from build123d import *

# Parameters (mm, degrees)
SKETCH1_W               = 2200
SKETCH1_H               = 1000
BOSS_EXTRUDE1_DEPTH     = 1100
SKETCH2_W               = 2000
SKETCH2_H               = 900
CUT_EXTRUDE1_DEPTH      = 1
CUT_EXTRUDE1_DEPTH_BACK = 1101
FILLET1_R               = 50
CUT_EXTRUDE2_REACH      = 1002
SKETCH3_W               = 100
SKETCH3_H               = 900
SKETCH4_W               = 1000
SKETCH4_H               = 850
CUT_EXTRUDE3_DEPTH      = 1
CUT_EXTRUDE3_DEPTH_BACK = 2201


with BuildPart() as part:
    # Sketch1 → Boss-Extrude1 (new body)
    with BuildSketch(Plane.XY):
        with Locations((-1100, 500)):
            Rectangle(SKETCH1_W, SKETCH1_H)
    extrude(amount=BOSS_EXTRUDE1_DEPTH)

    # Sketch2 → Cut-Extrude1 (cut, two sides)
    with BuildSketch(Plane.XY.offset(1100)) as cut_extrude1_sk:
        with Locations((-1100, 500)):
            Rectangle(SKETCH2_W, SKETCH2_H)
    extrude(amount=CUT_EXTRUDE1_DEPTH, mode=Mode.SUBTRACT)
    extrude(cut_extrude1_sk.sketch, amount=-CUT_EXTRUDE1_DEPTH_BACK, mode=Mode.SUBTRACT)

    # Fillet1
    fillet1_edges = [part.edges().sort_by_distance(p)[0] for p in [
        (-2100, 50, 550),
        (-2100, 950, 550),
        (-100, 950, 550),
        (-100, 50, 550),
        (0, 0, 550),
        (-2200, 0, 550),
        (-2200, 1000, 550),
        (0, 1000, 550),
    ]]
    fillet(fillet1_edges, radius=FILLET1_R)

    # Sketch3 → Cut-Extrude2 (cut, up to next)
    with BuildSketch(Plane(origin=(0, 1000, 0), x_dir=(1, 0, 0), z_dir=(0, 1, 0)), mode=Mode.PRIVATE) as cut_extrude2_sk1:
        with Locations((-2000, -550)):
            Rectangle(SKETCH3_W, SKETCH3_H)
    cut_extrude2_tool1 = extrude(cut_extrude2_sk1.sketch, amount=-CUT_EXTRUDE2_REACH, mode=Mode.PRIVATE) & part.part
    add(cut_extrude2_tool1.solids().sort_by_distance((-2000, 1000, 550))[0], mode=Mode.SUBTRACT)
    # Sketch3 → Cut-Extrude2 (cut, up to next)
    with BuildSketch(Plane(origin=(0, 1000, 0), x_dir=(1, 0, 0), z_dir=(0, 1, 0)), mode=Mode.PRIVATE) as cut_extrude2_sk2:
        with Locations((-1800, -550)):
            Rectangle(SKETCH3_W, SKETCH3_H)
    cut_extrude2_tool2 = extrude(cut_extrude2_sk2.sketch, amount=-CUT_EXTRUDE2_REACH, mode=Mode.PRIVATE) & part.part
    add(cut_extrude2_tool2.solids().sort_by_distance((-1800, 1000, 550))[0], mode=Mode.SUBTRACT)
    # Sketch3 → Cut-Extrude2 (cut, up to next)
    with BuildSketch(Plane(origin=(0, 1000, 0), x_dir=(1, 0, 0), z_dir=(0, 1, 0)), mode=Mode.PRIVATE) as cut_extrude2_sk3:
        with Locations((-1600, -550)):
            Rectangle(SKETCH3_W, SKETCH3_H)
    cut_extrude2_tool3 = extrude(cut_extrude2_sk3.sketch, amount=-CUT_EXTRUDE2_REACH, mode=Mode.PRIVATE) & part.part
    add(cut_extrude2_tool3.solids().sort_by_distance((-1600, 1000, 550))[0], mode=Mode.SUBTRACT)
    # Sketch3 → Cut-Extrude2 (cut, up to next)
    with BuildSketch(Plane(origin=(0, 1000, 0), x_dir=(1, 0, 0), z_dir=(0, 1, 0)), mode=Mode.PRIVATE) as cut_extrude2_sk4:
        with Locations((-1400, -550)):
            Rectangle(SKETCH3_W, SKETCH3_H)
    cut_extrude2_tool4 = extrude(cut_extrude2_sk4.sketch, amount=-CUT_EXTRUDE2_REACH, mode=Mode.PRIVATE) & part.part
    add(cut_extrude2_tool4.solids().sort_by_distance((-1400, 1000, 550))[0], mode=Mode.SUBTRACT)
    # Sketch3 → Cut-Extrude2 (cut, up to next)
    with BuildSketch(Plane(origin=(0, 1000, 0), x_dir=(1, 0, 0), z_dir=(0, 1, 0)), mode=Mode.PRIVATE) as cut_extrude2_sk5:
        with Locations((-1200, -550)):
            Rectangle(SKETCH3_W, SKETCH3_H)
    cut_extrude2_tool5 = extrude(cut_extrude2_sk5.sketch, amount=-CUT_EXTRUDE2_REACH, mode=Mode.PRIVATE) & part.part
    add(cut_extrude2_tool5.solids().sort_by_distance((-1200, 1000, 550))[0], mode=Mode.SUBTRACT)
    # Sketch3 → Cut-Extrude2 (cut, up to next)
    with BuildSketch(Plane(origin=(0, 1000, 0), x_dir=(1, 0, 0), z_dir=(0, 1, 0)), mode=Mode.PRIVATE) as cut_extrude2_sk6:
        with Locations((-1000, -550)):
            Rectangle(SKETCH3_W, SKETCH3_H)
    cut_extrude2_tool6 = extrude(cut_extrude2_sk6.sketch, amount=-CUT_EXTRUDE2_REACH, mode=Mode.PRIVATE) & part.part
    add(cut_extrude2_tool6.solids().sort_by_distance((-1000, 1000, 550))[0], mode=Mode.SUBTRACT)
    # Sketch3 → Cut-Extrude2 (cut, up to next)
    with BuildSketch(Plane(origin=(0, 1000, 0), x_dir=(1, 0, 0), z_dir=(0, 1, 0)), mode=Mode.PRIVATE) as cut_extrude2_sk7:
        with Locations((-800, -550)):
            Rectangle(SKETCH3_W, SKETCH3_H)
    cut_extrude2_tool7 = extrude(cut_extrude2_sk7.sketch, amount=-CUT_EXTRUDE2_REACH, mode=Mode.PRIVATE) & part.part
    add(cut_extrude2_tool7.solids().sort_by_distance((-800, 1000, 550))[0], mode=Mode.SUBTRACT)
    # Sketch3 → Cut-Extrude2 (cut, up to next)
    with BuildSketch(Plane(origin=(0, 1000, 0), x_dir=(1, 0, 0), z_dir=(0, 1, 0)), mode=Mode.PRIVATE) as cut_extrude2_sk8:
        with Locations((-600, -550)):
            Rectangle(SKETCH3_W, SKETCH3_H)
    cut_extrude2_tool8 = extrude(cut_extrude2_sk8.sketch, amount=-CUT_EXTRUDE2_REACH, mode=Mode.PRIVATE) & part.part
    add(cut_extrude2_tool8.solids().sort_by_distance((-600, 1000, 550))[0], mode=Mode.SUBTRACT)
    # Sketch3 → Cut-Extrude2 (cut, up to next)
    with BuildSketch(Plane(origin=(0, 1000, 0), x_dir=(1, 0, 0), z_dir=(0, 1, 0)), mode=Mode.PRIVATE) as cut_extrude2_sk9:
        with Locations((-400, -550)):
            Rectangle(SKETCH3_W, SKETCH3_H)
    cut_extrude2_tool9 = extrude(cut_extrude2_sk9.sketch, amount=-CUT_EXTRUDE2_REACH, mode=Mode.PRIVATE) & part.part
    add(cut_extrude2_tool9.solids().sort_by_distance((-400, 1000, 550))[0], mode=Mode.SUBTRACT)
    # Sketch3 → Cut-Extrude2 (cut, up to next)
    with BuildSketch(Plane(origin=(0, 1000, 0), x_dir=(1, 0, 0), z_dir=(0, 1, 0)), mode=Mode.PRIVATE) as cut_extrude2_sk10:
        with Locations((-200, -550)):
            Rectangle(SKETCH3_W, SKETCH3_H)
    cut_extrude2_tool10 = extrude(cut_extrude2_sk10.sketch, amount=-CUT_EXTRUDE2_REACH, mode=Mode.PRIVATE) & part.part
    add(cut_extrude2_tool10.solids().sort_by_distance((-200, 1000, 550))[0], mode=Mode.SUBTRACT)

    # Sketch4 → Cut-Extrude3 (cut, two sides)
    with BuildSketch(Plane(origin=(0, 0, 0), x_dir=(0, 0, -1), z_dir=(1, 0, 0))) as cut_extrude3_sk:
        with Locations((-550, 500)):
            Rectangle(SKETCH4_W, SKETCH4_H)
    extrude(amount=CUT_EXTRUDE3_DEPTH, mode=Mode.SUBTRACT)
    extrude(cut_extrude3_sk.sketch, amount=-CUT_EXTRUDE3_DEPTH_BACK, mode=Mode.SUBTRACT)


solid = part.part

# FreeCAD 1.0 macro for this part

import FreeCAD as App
import Part
import Sketcher


def edges_at(feature, points):
    """Names of the edges that pass closest to the given points."""
    edges = feature.Shape.Edges
    near = lambda p: min(range(len(edges)), key=lambda i: edges[i].distToShape(Part.Vertex(*p))[0])
    return sorted({f"Edge{near(p) + 1}" for p in points})

doc = App.newDocument("Part")
body = doc.addObject("PartDesign::Body", "Body")

# Sketch on XY plane
sketch1 = body.newObject("Sketcher::SketchObject", "Sketch")
sketch1.AttachmentSupport = (doc.getObject("XY_Plane"), [""])
sketch1.MapMode = "FlatFace"
sketch1.addGeometry([
    Part.LineSegment(App.Vector(-2200, 1000, 0), App.Vector(-2200, 0, 0)),
    Part.LineSegment(App.Vector(-2200, 0, 0), App.Vector(0, 0, 0)),
    Part.LineSegment(App.Vector(0, 0, 0), App.Vector(0, 1000, 0)),
    Part.LineSegment(App.Vector(0, 1000, 0), App.Vector(-2200, 1000, 0)),
], False)
sketch1.addConstraint([
    Sketcher.Constraint("Coincident", 0, 2, 1, 1),
    Sketcher.Constraint("Coincident", 1, 2, 2, 1),
    Sketcher.Constraint("Coincident", 2, 2, 3, 1),
    Sketcher.Constraint("Coincident", 3, 2, 0, 1),
    Sketcher.Constraint("Vertical", 0),
    Sketcher.Constraint("Horizontal", 1),
    Sketcher.Constraint("Vertical", 2),
    Sketcher.Constraint("Horizontal", 3),
    Sketcher.Constraint("Coincident", 1, 2, -1, 1),
    Sketcher.Constraint("DistanceX", 1, 1, 1, 2, 2200.0),
    Sketcher.Constraint("DistanceY", 0, 2, 0, 1, 1000.0),
])
pad1 = body.newObject("PartDesign::Pad", "Pad")
pad1.Profile = sketch1
pad1.Length = 1100

# Sketch on XY plane
sketch2 = body.newObject("Sketcher::SketchObject", "Sketch001")
sketch2.AttachmentSupport = (doc.getObject("XY_Plane"), [""])
sketch2.MapMode = "FlatFace"
sketch2.AttachmentOffset = App.Placement(App.Vector(0, 0, 1100), App.Rotation())
sketch2.addGeometry([
    Part.LineSegment(App.Vector(-2100, 950, 0), App.Vector(-2100, 50, 0)),
    Part.LineSegment(App.Vector(-2100, 50, 0), App.Vector(-100, 50, 0)),
    Part.LineSegment(App.Vector(-100, 50, 0), App.Vector(-100, 950, 0)),
    Part.LineSegment(App.Vector(-100, 950, 0), App.Vector(-2100, 950, 0)),
], False)
sketch2.addConstraint([
    Sketcher.Constraint("Coincident", 0, 2, 1, 1),
    Sketcher.Constraint("Coincident", 1, 2, 2, 1),
    Sketcher.Constraint("Coincident", 2, 2, 3, 1),
    Sketcher.Constraint("Coincident", 3, 2, 0, 1),
    Sketcher.Constraint("Vertical", 0),
    Sketcher.Constraint("Horizontal", 1),
    Sketcher.Constraint("Vertical", 2),
    Sketcher.Constraint("Horizontal", 3),
    Sketcher.Constraint("DistanceX", 1, 1, 1, 2, 2000.0),
    Sketcher.Constraint("DistanceY", 0, 2, 0, 1, 900.0),
    Sketcher.Constraint("DistanceX", 0, 2, -1, 1, 2100.0),
    Sketcher.Constraint("DistanceY", -1, 1, 0, 2, 50.0),
])
pocket1 = body.newObject("PartDesign::Pocket", "Pocket")
pocket1.Profile = sketch2
pocket1.Type = "ThroughAll"
pocket1.Midplane = True
doc.recompute()

fillet = body.newObject("PartDesign::Fillet", "Fillet")
fillet.Base = (pocket1, edges_at(pocket1, [
    (-2100, 50, 550),
    (-2100, 950, 550),
    (-100, 950, 550),
    (-100, 50, 550),
    (0, 0, 550),
    (-2200, 0, 550),
    (-2200, 1000, 550),
    (0, 1000, 550),
]))
fillet.Radius = 50

# Sketch on XZ plane
sketch3 = body.newObject("Sketcher::SketchObject", "Sketch002")
sketch3.AttachmentSupport = (doc.getObject("XZ_Plane"), [""])
sketch3.MapMode = "FlatFace"
sketch3.AttachmentOffset = App.Placement(App.Vector(0, 0, -1000), App.Rotation())
sketch3.addGeometry([
    Part.LineSegment(App.Vector(-2050, 100, 0), App.Vector(-2050, 1000, 0)),
    Part.LineSegment(App.Vector(-2050, 1000, 0), App.Vector(-1950, 1000, 0)),
    Part.LineSegment(App.Vector(-1950, 1000, 0), App.Vector(-1950, 100, 0)),
    Part.LineSegment(App.Vector(-1950, 100, 0), App.Vector(-2050, 100, 0)),
], False)
sketch3.addConstraint([
    Sketcher.Constraint("Coincident", 0, 2, 1, 1),
    Sketcher.Constraint("Coincident", 1, 2, 2, 1),
    Sketcher.Constraint("Coincident", 2, 2, 3, 1),
    Sketcher.Constraint("Coincident", 3, 2, 0, 1),
    Sketcher.Constraint("Vertical", 0),
    Sketcher.Constraint("Horizontal", 1),
    Sketcher.Constraint("Vertical", 2),
    Sketcher.Constraint("Horizontal", 3),
    Sketcher.Constraint("DistanceX", 1, 1, 1, 2, 100.0),
    Sketcher.Constraint("DistanceY", 0, 1, 0, 2, 900.0),
    Sketcher.Constraint("DistanceX", 0, 2, -1, 1, 2050.0),
    Sketcher.Constraint("DistanceY", -1, 1, 0, 2, 1000.0),
])
pocket2 = body.newObject("PartDesign::Pocket", "Pocket001")
pocket2.Profile = sketch3
pocket2.Type = "UpToFirst"
pocket2.Reversed = True

# Sketch on XZ plane
sketch4 = body.newObject("Sketcher::SketchObject", "Sketch003")
sketch4.AttachmentSupport = (doc.getObject("XZ_Plane"), [""])
sketch4.MapMode = "FlatFace"
sketch4.AttachmentOffset = App.Placement(App.Vector(0, 0, -1000), App.Rotation())
sketch4.addGeometry([
    Part.LineSegment(App.Vector(-1850, 100, 0), App.Vector(-1850, 1000, 0)),
    Part.LineSegment(App.Vector(-1850, 1000, 0), App.Vector(-1750, 1000, 0)),
    Part.LineSegment(App.Vector(-1750, 1000, 0), App.Vector(-1750, 100, 0)),
    Part.LineSegment(App.Vector(-1750, 100, 0), App.Vector(-1850, 100, 0)),
], False)
sketch4.addConstraint([
    Sketcher.Constraint("Coincident", 0, 2, 1, 1),
    Sketcher.Constraint("Coincident", 1, 2, 2, 1),
    Sketcher.Constraint("Coincident", 2, 2, 3, 1),
    Sketcher.Constraint("Coincident", 3, 2, 0, 1),
    Sketcher.Constraint("Vertical", 0),
    Sketcher.Constraint("Horizontal", 1),
    Sketcher.Constraint("Vertical", 2),
    Sketcher.Constraint("Horizontal", 3),
    Sketcher.Constraint("DistanceX", 1, 1, 1, 2, 100.0),
    Sketcher.Constraint("DistanceY", 0, 1, 0, 2, 900.0),
    Sketcher.Constraint("DistanceX", 0, 2, -1, 1, 1850.0),
    Sketcher.Constraint("DistanceY", -1, 1, 0, 2, 1000.0),
])
pocket3 = body.newObject("PartDesign::Pocket", "Pocket002")
pocket3.Profile = sketch4
pocket3.Type = "UpToFirst"
pocket3.Reversed = True

# Sketch on XZ plane
sketch5 = body.newObject("Sketcher::SketchObject", "Sketch004")
sketch5.AttachmentSupport = (doc.getObject("XZ_Plane"), [""])
sketch5.MapMode = "FlatFace"
sketch5.AttachmentOffset = App.Placement(App.Vector(0, 0, -1000), App.Rotation())
sketch5.addGeometry([
    Part.LineSegment(App.Vector(-1650, 100, 0), App.Vector(-1650, 1000, 0)),
    Part.LineSegment(App.Vector(-1650, 1000, 0), App.Vector(-1550, 1000, 0)),
    Part.LineSegment(App.Vector(-1550, 1000, 0), App.Vector(-1550, 100, 0)),
    Part.LineSegment(App.Vector(-1550, 100, 0), App.Vector(-1650, 100, 0)),
], False)
sketch5.addConstraint([
    Sketcher.Constraint("Coincident", 0, 2, 1, 1),
    Sketcher.Constraint("Coincident", 1, 2, 2, 1),
    Sketcher.Constraint("Coincident", 2, 2, 3, 1),
    Sketcher.Constraint("Coincident", 3, 2, 0, 1),
    Sketcher.Constraint("Vertical", 0),
    Sketcher.Constraint("Horizontal", 1),
    Sketcher.Constraint("Vertical", 2),
    Sketcher.Constraint("Horizontal", 3),
    Sketcher.Constraint("DistanceX", 1, 1, 1, 2, 100.0),
    Sketcher.Constraint("DistanceY", 0, 1, 0, 2, 900.0),
    Sketcher.Constraint("DistanceX", 0, 2, -1, 1, 1650.0),
    Sketcher.Constraint("DistanceY", -1, 1, 0, 2, 1000.0),
])
pocket4 = body.newObject("PartDesign::Pocket", "Pocket003")
pocket4.Profile = sketch5
pocket4.Type = "UpToFirst"
pocket4.Reversed = True

# Sketch on XZ plane
sketch6 = body.newObject("Sketcher::SketchObject", "Sketch005")
sketch6.AttachmentSupport = (doc.getObject("XZ_Plane"), [""])
sketch6.MapMode = "FlatFace"
sketch6.AttachmentOffset = App.Placement(App.Vector(0, 0, -1000), App.Rotation())
sketch6.addGeometry([
    Part.LineSegment(App.Vector(-1450, 100, 0), App.Vector(-1450, 1000, 0)),
    Part.LineSegment(App.Vector(-1450, 1000, 0), App.Vector(-1350, 1000, 0)),
    Part.LineSegment(App.Vector(-1350, 1000, 0), App.Vector(-1350, 100, 0)),
    Part.LineSegment(App.Vector(-1350, 100, 0), App.Vector(-1450, 100, 0)),
], False)
sketch6.addConstraint([
    Sketcher.Constraint("Coincident", 0, 2, 1, 1),
    Sketcher.Constraint("Coincident", 1, 2, 2, 1),
    Sketcher.Constraint("Coincident", 2, 2, 3, 1),
    Sketcher.Constraint("Coincident", 3, 2, 0, 1),
    Sketcher.Constraint("Vertical", 0),
    Sketcher.Constraint("Horizontal", 1),
    Sketcher.Constraint("Vertical", 2),
    Sketcher.Constraint("Horizontal", 3),
    Sketcher.Constraint("DistanceX", 1, 1, 1, 2, 100.0),
    Sketcher.Constraint("DistanceY", 0, 1, 0, 2, 900.0),
    Sketcher.Constraint("DistanceX", 0, 2, -1, 1, 1450.0),
    Sketcher.Constraint("DistanceY", -1, 1, 0, 2, 1000.0),
])
pocket5 = body.newObject("PartDesign::Pocket", "Pocket004")
pocket5.Profile = sketch6
pocket5.Type = "UpToFirst"
pocket5.Reversed = True

# Sketch on XZ plane
sketch7 = body.newObject("Sketcher::SketchObject", "Sketch006")
sketch7.AttachmentSupport = (doc.getObject("XZ_Plane"), [""])
sketch7.MapMode = "FlatFace"
sketch7.AttachmentOffset = App.Placement(App.Vector(0, 0, -1000), App.Rotation())
sketch7.addGeometry([
    Part.LineSegment(App.Vector(-1250, 100, 0), App.Vector(-1250, 1000, 0)),
    Part.LineSegment(App.Vector(-1250, 1000, 0), App.Vector(-1150, 1000, 0)),
    Part.LineSegment(App.Vector(-1150, 1000, 0), App.Vector(-1150, 100, 0)),
    Part.LineSegment(App.Vector(-1150, 100, 0), App.Vector(-1250, 100, 0)),
], False)
sketch7.addConstraint([
    Sketcher.Constraint("Coincident", 0, 2, 1, 1),
    Sketcher.Constraint("Coincident", 1, 2, 2, 1),
    Sketcher.Constraint("Coincident", 2, 2, 3, 1),
    Sketcher.Constraint("Coincident", 3, 2, 0, 1),
    Sketcher.Constraint("Vertical", 0),
    Sketcher.Constraint("Horizontal", 1),
    Sketcher.Constraint("Vertical", 2),
    Sketcher.Constraint("Horizontal", 3),
    Sketcher.Constraint("DistanceX", 1, 1, 1, 2, 100.0),
    Sketcher.Constraint("DistanceY", 0, 1, 0, 2, 900.0),
    Sketcher.Constraint("DistanceX", 0, 2, -1, 1, 1250.0),
    Sketcher.Constraint("DistanceY", -1, 1, 0, 2, 1000.0),
])
pocket6 = body.newObject("PartDesign::Pocket", "Pocket005")
pocket6.Profile = sketch7
pocket6.Type = "UpToFirst"
pocket6.Reversed = True

# Sketch on XZ plane
sketch8 = body.newObject("Sketcher::SketchObject", "Sketch007")
sketch8.AttachmentSupport = (doc.getObject("XZ_Plane"), [""])
sketch8.MapMode = "FlatFace"
sketch8.AttachmentOffset = App.Placement(App.Vector(0, 0, -1000), App.Rotation())
sketch8.addGeometry([
    Part.LineSegment(App.Vector(-1050, 100, 0), App.Vector(-1050, 1000, 0)),
    Part.LineSegment(App.Vector(-1050, 1000, 0), App.Vector(-950, 1000, 0)),
    Part.LineSegment(App.Vector(-950, 1000, 0), App.Vector(-950, 100, 0)),
    Part.LineSegment(App.Vector(-950, 100, 0), App.Vector(-1050, 100, 0)),
], False)
sketch8.addConstraint([
    Sketcher.Constraint("Coincident", 0, 2, 1, 1),
    Sketcher.Constraint("Coincident", 1, 2, 2, 1),
    Sketcher.Constraint("Coincident", 2, 2, 3, 1),
    Sketcher.Constraint("Coincident", 3, 2, 0, 1),
    Sketcher.Constraint("Vertical", 0),
    Sketcher.Constraint("Horizontal", 1),
    Sketcher.Constraint("Vertical", 2),
    Sketcher.Constraint("Horizontal", 3),
    Sketcher.Constraint("DistanceX", 1, 1, 1, 2, 100.0),
    Sketcher.Constraint("DistanceY", 0, 1, 0, 2, 900.0),
    Sketcher.Constraint("DistanceX", 0, 2, -1, 1, 1050.0),
    Sketcher.Constraint("DistanceY", -1, 1, 0, 2, 1000.0),
])
pocket7 = body.newObject("PartDesign::Pocket", "Pocket006")
pocket7.Profile = sketch8
pocket7.Type = "UpToFirst"
pocket7.Reversed = True

# Sketch on XZ plane
sketch9 = body.newObject("Sketcher::SketchObject", "Sketch008")
sketch9.AttachmentSupport = (doc.getObject("XZ_Plane"), [""])
sketch9.MapMode = "FlatFace"
sketch9.AttachmentOffset = App.Placement(App.Vector(0, 0, -1000), App.Rotation())
sketch9.addGeometry([
    Part.LineSegment(App.Vector(-850, 100, 0), App.Vector(-850, 1000, 0)),
    Part.LineSegment(App.Vector(-850, 1000, 0), App.Vector(-750, 1000, 0)),
    Part.LineSegment(App.Vector(-750, 1000, 0), App.Vector(-750, 100, 0)),
    Part.LineSegment(App.Vector(-750, 100, 0), App.Vector(-850, 100, 0)),
], False)
sketch9.addConstraint([
    Sketcher.Constraint("Coincident", 0, 2, 1, 1),
    Sketcher.Constraint("Coincident", 1, 2, 2, 1),
    Sketcher.Constraint("Coincident", 2, 2, 3, 1),
    Sketcher.Constraint("Coincident", 3, 2, 0, 1),
    Sketcher.Constraint("Vertical", 0),
    Sketcher.Constraint("Horizontal", 1),
    Sketcher.Constraint("Vertical", 2),
    Sketcher.Constraint("Horizontal", 3),
    Sketcher.Constraint("DistanceX", 1, 1, 1, 2, 100.0),
    Sketcher.Constraint("DistanceY", 0, 1, 0, 2, 900.0),
    Sketcher.Constraint("DistanceX", 0, 2, -1, 1, 850.0),
    Sketcher.Constraint("DistanceY", -1, 1, 0, 2, 1000.0),
])
pocket8 = body.newObject("PartDesign::Pocket", "Pocket007")
pocket8.Profile = sketch9
pocket8.Type = "UpToFirst"
pocket8.Reversed = True

# Sketch on XZ plane
sketch10 = body.newObject("Sketcher::SketchObject", "Sketch009")
sketch10.AttachmentSupport = (doc.getObject("XZ_Plane"), [""])
sketch10.MapMode = "FlatFace"
sketch10.AttachmentOffset = App.Placement(App.Vector(0, 0, -1000), App.Rotation())
sketch10.addGeometry([
    Part.LineSegment(App.Vector(-650, 100, 0), App.Vector(-650, 1000, 0)),
    Part.LineSegment(App.Vector(-650, 1000, 0), App.Vector(-550, 1000, 0)),
    Part.LineSegment(App.Vector(-550, 1000, 0), App.Vector(-550, 100, 0)),
    Part.LineSegment(App.Vector(-550, 100, 0), App.Vector(-650, 100, 0)),
], False)
sketch10.addConstraint([
    Sketcher.Constraint("Coincident", 0, 2, 1, 1),
    Sketcher.Constraint("Coincident", 1, 2, 2, 1),
    Sketcher.Constraint("Coincident", 2, 2, 3, 1),
    Sketcher.Constraint("Coincident", 3, 2, 0, 1),
    Sketcher.Constraint("Vertical", 0),
    Sketcher.Constraint("Horizontal", 1),
    Sketcher.Constraint("Vertical", 2),
    Sketcher.Constraint("Horizontal", 3),
    Sketcher.Constraint("DistanceX", 1, 1, 1, 2, 100.0),
    Sketcher.Constraint("DistanceY", 0, 1, 0, 2, 900.0),
    Sketcher.Constraint("DistanceX", 0, 2, -1, 1, 650.0),
    Sketcher.Constraint("DistanceY", -1, 1, 0, 2, 1000.0),
])
pocket9 = body.newObject("PartDesign::Pocket", "Pocket008")
pocket9.Profile = sketch10
pocket9.Type = "UpToFirst"
pocket9.Reversed = True

# Sketch on XZ plane
sketch11 = body.newObject("Sketcher::SketchObject", "Sketch010")
sketch11.AttachmentSupport = (doc.getObject("XZ_Plane"), [""])
sketch11.MapMode = "FlatFace"
sketch11.AttachmentOffset = App.Placement(App.Vector(0, 0, -1000), App.Rotation())
sketch11.addGeometry([
    Part.LineSegment(App.Vector(-450, 100, 0), App.Vector(-450, 1000, 0)),
    Part.LineSegment(App.Vector(-450, 1000, 0), App.Vector(-350, 1000, 0)),
    Part.LineSegment(App.Vector(-350, 1000, 0), App.Vector(-350, 100, 0)),
    Part.LineSegment(App.Vector(-350, 100, 0), App.Vector(-450, 100, 0)),
], False)
sketch11.addConstraint([
    Sketcher.Constraint("Coincident", 0, 2, 1, 1),
    Sketcher.Constraint("Coincident", 1, 2, 2, 1),
    Sketcher.Constraint("Coincident", 2, 2, 3, 1),
    Sketcher.Constraint("Coincident", 3, 2, 0, 1),
    Sketcher.Constraint("Vertical", 0),
    Sketcher.Constraint("Horizontal", 1),
    Sketcher.Constraint("Vertical", 2),
    Sketcher.Constraint("Horizontal", 3),
    Sketcher.Constraint("DistanceX", 1, 1, 1, 2, 100.0),
    Sketcher.Constraint("DistanceY", 0, 1, 0, 2, 900.0),
    Sketcher.Constraint("DistanceX", 0, 2, -1, 1, 450.0),
    Sketcher.Constraint("DistanceY", -1, 1, 0, 2, 1000.0),
])
pocket10 = body.newObject("PartDesign::Pocket", "Pocket009")
pocket10.Profile = sketch11
pocket10.Type = "UpToFirst"
pocket10.Reversed = True

# Sketch on XZ plane
sketch12 = body.newObject("Sketcher::SketchObject", "Sketch011")
sketch12.AttachmentSupport = (doc.getObject("XZ_Plane"), [""])
sketch12.MapMode = "FlatFace"
sketch12.AttachmentOffset = App.Placement(App.Vector(0, 0, -1000), App.Rotation())
sketch12.addGeometry([
    Part.LineSegment(App.Vector(-250, 100, 0), App.Vector(-250, 1000, 0)),
    Part.LineSegment(App.Vector(-250, 1000, 0), App.Vector(-150, 1000, 0)),
    Part.LineSegment(App.Vector(-150, 1000, 0), App.Vector(-150, 100, 0)),
    Part.LineSegment(App.Vector(-150, 100, 0), App.Vector(-250, 100, 0)),
], False)
sketch12.addConstraint([
    Sketcher.Constraint("Coincident", 0, 2, 1, 1),
    Sketcher.Constraint("Coincident", 1, 2, 2, 1),
    Sketcher.Constraint("Coincident", 2, 2, 3, 1),
    Sketcher.Constraint("Coincident", 3, 2, 0, 1),
    Sketcher.Constraint("Vertical", 0),
    Sketcher.Constraint("Horizontal", 1),
    Sketcher.Constraint("Vertical", 2),
    Sketcher.Constraint("Horizontal", 3),
    Sketcher.Constraint("DistanceX", 1, 1, 1, 2, 100.0),
    Sketcher.Constraint("DistanceY", 0, 1, 0, 2, 900.0),
    Sketcher.Constraint("DistanceX", 0, 2, -1, 1, 250.0),
    Sketcher.Constraint("DistanceY", -1, 1, 0, 2, 1000.0),
])
pocket11 = body.newObject("PartDesign::Pocket", "Pocket010")
pocket11.Profile = sketch12
pocket11.Type = "UpToFirst"
pocket11.Reversed = True

# Sketch on YZ plane
sketch13 = body.newObject("Sketcher::SketchObject", "Sketch012")
sketch13.AttachmentSupport = (doc.getObject("YZ_Plane"), [""])
sketch13.MapMode = "FlatFace"
sketch13.addGeometry([
    Part.LineSegment(App.Vector(925, 1050, 0), App.Vector(75, 1050, 0)),
    Part.LineSegment(App.Vector(75, 1050, 0), App.Vector(75, 50, 0)),
    Part.LineSegment(App.Vector(75, 50, 0), App.Vector(925, 50, 0)),
    Part.LineSegment(App.Vector(925, 50, 0), App.Vector(925, 1050, 0)),
], False)
sketch13.addConstraint([
    Sketcher.Constraint("Coincident", 0, 2, 1, 1),
    Sketcher.Constraint("Coincident", 1, 2, 2, 1),
    Sketcher.Constraint("Coincident", 2, 2, 3, 1),
    Sketcher.Constraint("Coincident", 3, 2, 0, 1),
    Sketcher.Constraint("Horizontal", 0),
    Sketcher.Constraint("Vertical", 1),
    Sketcher.Constraint("Horizontal", 2),
    Sketcher.Constraint("Vertical", 3),
    Sketcher.Constraint("DistanceX", 0, 2, 0, 1, 850.0),
    Sketcher.Constraint("DistanceY", 1, 2, 1, 1, 1000.0),
    Sketcher.Constraint("DistanceX", -1, 1, 0, 2, 75.0),
    Sketcher.Constraint("DistanceY", -1, 1, 0, 2, 1050.0),
])
pocket12 = body.newObject("PartDesign::Pocket", "Pocket011")
pocket12.Profile = sketch13
pocket12.Type = "ThroughAll"
pocket12.Midplane = True

doc.recompute()
